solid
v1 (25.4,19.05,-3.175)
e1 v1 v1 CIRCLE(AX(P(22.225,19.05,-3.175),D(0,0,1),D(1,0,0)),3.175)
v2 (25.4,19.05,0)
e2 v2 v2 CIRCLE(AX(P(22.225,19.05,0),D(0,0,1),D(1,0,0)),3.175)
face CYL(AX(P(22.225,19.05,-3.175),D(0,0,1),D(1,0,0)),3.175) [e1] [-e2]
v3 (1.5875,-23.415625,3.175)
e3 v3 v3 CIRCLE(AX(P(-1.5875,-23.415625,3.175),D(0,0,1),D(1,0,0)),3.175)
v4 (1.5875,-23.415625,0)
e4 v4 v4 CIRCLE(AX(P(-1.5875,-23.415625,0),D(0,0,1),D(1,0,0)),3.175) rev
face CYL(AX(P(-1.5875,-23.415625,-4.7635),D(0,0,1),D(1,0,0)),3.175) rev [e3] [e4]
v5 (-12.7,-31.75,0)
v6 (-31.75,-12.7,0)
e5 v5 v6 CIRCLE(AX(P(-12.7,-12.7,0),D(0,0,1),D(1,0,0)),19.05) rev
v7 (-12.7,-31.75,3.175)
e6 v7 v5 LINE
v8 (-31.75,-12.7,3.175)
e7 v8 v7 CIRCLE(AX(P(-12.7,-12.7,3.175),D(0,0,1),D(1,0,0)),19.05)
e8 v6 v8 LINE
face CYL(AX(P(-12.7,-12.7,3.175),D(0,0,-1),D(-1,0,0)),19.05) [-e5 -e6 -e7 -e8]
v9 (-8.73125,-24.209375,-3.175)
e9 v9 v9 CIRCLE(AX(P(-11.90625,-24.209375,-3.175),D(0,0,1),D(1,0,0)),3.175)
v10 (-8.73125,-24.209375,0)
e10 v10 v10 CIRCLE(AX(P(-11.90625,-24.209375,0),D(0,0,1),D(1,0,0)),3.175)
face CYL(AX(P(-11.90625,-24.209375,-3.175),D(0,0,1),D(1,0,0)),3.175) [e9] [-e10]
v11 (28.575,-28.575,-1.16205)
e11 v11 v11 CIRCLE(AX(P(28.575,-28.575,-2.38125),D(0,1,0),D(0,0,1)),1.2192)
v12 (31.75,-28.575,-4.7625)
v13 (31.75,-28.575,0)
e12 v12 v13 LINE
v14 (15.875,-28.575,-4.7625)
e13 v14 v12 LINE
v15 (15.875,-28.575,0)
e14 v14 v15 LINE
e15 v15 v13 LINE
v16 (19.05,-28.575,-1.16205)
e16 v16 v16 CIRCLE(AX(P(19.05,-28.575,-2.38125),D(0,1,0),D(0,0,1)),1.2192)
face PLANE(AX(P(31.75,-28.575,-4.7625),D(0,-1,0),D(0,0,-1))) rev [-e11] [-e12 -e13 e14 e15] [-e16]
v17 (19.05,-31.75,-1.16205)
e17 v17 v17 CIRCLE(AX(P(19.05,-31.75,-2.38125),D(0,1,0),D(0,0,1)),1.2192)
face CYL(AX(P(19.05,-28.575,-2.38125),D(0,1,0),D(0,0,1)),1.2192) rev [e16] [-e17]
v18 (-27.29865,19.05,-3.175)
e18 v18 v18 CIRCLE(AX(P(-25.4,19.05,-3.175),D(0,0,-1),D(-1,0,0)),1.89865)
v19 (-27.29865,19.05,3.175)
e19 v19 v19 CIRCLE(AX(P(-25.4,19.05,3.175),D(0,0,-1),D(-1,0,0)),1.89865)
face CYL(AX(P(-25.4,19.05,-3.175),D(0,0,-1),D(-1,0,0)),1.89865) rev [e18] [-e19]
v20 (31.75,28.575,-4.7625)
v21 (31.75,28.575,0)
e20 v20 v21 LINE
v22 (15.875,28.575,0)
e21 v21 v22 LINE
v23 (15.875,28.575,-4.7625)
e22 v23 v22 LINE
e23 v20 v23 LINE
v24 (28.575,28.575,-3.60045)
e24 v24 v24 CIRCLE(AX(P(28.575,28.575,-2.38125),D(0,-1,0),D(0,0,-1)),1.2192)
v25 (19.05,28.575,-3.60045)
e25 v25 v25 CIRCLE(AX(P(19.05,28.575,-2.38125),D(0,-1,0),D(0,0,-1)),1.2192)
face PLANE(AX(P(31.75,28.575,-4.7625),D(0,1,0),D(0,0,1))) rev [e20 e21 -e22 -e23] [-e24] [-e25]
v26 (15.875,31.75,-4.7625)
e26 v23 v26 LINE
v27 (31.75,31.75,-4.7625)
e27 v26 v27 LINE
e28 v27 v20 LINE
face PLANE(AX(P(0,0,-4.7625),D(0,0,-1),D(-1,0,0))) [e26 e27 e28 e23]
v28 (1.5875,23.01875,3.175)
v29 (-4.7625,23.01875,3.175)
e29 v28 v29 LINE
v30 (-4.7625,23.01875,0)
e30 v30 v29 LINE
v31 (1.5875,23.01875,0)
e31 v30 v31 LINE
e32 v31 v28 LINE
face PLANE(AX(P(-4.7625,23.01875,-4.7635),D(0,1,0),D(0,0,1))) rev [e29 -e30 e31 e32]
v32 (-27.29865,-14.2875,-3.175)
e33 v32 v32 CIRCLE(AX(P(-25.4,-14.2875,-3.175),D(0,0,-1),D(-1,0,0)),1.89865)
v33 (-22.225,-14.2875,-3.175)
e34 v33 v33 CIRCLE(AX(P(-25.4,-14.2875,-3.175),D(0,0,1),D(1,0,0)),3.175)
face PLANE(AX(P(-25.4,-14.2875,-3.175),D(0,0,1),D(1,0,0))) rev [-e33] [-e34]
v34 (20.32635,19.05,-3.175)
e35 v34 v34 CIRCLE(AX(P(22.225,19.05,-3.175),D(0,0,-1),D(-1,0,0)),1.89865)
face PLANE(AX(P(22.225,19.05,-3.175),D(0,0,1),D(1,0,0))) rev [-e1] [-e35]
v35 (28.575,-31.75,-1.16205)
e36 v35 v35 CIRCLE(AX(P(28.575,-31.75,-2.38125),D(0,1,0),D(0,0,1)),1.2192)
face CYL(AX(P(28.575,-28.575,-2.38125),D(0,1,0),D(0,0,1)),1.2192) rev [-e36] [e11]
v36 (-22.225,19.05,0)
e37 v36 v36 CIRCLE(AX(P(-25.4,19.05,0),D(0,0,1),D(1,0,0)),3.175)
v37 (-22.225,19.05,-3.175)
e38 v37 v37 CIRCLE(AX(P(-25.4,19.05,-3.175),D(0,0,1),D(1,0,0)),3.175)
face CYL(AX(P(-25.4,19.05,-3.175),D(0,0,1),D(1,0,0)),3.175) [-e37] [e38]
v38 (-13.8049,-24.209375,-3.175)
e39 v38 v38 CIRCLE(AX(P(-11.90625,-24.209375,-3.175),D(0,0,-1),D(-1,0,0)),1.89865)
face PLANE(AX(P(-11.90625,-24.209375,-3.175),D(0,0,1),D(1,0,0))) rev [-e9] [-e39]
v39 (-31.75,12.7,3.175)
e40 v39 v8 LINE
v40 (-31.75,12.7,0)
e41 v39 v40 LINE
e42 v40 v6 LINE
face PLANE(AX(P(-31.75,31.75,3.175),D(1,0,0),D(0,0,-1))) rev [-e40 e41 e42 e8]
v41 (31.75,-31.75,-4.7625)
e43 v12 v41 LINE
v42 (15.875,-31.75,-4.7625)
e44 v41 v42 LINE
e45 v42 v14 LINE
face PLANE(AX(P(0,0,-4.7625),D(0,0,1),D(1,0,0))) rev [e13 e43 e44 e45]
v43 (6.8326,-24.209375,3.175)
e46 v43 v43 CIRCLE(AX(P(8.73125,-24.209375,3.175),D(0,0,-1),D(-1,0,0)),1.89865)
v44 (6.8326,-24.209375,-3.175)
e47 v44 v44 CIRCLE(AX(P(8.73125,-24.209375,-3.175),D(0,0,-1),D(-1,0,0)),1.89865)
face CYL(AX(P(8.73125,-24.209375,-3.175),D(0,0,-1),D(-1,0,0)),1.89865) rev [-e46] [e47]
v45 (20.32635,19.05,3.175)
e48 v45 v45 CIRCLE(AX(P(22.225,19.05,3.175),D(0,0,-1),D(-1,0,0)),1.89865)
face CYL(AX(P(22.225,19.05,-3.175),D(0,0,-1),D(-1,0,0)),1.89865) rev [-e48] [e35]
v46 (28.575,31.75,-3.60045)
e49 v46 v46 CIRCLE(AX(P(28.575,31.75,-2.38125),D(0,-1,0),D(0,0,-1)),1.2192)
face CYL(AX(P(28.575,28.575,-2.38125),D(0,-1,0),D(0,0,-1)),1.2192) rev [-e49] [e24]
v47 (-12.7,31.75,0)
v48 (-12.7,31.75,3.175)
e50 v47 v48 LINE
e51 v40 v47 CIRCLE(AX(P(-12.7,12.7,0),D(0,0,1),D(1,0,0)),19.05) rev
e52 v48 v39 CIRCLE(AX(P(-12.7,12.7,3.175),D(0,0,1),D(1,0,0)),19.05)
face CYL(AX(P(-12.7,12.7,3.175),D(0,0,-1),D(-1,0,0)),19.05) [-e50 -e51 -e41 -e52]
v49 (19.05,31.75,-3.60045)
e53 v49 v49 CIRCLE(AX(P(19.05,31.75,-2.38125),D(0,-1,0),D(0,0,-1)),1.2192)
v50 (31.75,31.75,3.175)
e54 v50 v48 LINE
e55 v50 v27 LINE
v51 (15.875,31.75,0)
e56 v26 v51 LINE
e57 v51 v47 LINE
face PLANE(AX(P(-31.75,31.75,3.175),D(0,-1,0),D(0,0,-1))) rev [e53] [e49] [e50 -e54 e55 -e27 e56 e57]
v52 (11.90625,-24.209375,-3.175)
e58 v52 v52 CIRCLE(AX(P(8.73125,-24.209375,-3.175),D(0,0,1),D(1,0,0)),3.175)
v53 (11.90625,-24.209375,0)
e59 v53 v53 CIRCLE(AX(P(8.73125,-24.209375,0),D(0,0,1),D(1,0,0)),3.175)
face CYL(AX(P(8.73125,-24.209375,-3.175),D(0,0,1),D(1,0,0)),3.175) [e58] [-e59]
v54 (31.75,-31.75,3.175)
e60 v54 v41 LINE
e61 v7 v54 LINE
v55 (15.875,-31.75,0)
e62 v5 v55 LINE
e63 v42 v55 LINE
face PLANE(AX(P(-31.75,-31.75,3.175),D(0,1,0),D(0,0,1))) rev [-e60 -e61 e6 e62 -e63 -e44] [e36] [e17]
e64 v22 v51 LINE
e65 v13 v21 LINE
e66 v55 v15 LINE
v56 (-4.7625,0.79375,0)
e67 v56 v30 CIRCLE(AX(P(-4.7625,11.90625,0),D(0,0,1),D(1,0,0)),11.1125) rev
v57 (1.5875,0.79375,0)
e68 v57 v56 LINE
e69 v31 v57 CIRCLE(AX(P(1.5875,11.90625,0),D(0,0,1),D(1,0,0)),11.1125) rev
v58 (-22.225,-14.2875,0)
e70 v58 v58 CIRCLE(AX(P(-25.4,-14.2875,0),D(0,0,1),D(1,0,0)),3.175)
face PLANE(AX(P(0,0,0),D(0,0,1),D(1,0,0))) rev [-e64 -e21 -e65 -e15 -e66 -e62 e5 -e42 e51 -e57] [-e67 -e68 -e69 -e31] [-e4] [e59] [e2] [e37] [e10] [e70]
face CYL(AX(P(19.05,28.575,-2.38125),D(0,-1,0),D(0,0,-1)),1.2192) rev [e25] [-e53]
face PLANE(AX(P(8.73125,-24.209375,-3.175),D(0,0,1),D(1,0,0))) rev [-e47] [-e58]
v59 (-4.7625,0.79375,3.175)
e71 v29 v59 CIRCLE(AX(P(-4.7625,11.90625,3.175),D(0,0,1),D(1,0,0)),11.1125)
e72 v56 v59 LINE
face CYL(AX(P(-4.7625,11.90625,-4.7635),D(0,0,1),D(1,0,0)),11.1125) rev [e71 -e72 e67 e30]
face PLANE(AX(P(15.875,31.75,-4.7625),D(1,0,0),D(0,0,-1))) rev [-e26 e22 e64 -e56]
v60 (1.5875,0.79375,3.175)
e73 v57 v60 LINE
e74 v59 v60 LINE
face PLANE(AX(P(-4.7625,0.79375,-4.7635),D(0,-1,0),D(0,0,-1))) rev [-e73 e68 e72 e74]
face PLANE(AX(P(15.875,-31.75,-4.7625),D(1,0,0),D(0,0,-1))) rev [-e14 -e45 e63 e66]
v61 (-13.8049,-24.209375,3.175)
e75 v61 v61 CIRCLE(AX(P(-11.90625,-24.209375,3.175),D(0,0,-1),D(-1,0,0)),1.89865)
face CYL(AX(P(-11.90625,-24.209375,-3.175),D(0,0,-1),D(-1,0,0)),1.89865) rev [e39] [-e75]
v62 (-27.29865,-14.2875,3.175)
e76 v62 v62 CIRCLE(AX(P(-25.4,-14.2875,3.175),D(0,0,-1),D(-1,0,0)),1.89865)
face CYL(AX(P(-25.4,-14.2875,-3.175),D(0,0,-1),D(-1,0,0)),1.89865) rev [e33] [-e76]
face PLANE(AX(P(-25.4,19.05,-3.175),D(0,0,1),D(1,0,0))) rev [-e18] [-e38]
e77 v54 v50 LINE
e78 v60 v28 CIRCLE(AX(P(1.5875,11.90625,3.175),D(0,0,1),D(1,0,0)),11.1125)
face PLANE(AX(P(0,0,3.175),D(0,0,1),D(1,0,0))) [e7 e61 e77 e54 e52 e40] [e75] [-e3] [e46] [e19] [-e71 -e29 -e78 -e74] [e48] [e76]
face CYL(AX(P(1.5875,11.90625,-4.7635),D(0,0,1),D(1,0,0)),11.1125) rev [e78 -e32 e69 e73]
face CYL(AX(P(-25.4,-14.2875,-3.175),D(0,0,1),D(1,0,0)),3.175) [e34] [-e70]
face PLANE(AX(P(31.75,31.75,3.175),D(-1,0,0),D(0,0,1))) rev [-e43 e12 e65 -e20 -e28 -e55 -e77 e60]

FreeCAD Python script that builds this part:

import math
import FreeCAD as App
import Part
import Sketcher
from FreeCAD import Vector
Q = App.Units.Quantity


def edges_at(feature, points):
    """Names of the edges that pass closest to the given points."""
    edges = feature.Shape.Edges
    near = lambda p: min(range(len(edges)), key=lambda i: edges[i].distToShape(Part.Vertex(*p))[0])
    return sorted({f"Edge{near(p) + 1}" for p in points})


def add_polygon(sketch, points):
    """Adds a closed chain of lines whose ends are joined by coincident constraints."""
    first, n = sketch.GeometryCount, len(points)
    for a, b in zip(points, points[1:] + points[:1]):
        sketch.addGeometry(Part.LineSegment(App.Vector(*a, 0), App.Vector(*b, 0)), False)
    for i in range(n):
        sketch.addConstraint(Sketcher.Constraint("Coincident", first + i, 2, first + (i + 1) % n, 1))

doc = App.newDocument("Part")
body = doc.addObject("PartDesign::Body", "Body")

# Sketch on XY plane
sketch1 = body.newObject("Sketcher::SketchObject", "Sketch")
sketch1.AttachmentSupport = (doc.getObject("XY_Plane"), [""])
sketch1.MapMode = "FlatFace"
add_polygon(sketch1, [(-32, 32), (-32, -32), (32, -32), (32, 32)])  # lines 0-3
sketch1.addConstraint(Sketcher.Constraint("Vertical", 0))
sketch1.addConstraint(Sketcher.Constraint("Horizontal", 1))
sketch1.addConstraint(Sketcher.Constraint("Vertical", 2))
sketch1.addConstraint(Sketcher.Constraint("Horizontal", 3))
sketch1.addConstraint(Sketcher.Constraint("Symmetric", 0, 2, 2, 2, -1, 1))
sketch1.addConstraint(Sketcher.Constraint("Equal", 3, 0))
sketch1.addConstraint(Sketcher.Constraint("DistanceX", 1, 1, 1, 2, Q("2.5 in")))
pad1 = body.newObject("PartDesign::Pad", "Pad")
pad1.Profile = sketch1
pad1.Length = Q("0.125 in")

# Sketch on XY plane
sketch2 = body.newObject("Sketcher::SketchObject", "Sketch001")
sketch2.AttachmentSupport = (doc.getObject("XY_Plane"), [""])
sketch2.MapMode = "FlatFace"
add_polygon(sketch2, [(15.9, -31.8), (15.9, -28.6), (31.8, -28.6), (31.8, -31.8)])  # lines 0-3
sketch2.addConstraint(Sketcher.Constraint("Vertical", 0))
sketch2.addConstraint(Sketcher.Constraint("Horizontal", 1))
sketch2.addConstraint(Sketcher.Constraint("Vertical", 2))
sketch2.addConstraint(Sketcher.Constraint("Horizontal", 3))
sketch2.addConstraint(Sketcher.Constraint("DistanceX", 1, 1, 1, 2, Q("0.625 in")))
sketch2.addConstraint(Sketcher.Constraint("DistanceY", 0, 1, 0, 2, Q("0.125 in")))
sketch2.addConstraint(Sketcher.Constraint("DistanceX", -1, 1, 1, 2, Q("1.25 in")))
sketch2.addConstraint(Sketcher.Constraint("DistanceY", 2, 2, -1, 1, Q("1.25 in")))
pad2 = body.newObject("PartDesign::Pad", "Pad001")
pad2.Profile = sketch2
pad2.Length = Q("0.1875 in")
pad2.Reversed = True

# Sketch on XZ plane
sketch3 = body.newObject("Sketcher::SketchObject", "Sketch002")
sketch3.AttachmentSupport = (doc.getObject("XZ_Plane"), [""])
sketch3.MapMode = "FlatFace"
sketch3.AttachmentOffset = App.Placement(Vector(0, 0, 1.125 * 25.4), App.Rotation())
sketch3.addGeometry(Part.Circle(Vector(28.6, -2.4, 0), Vector(0, 0, 1), 1.2), False)
sketch3.addGeometry(Part.Circle(Vector(19.1, -2.4, 0), Vector(0, 0, 1), 1.2), False)
sketch3.addConstraint(Sketcher.Constraint("Equal", 0, 1))
sketch3.addConstraint(Sketcher.Constraint("Horizontal", 0, 3, 1, 3))
sketch3.addConstraint(Sketcher.Constraint("Diameter", 0, Q("0.096 in")))
sketch3.addConstraint(Sketcher.Constraint("DistanceX", -1, 1, 1, 3, Q("0.75 in")))
sketch3.addConstraint(Sketcher.Constraint("DistanceX", -1, 1, 0, 3, Q("1.125 in")))
sketch3.addConstraint(Sketcher.Constraint("DistanceY", 0, 3, -1, 1, Q("0.09375 in")))
doc.recompute()
hole = body.newObject("PartDesign::Hole", "Hole")
hole.Profile = sketch3
hole.ThreadType = "None"
hole.Diameter = Q("0.096 in")
hole.DepthType = "Dimension"
hole.Depth = Q("0.125 in")
hole.DrillPoint = "Flat"
hole.Reversed = True
doc.recompute()

fillet = body.newObject("PartDesign::Fillet", "Fillet")
fillet.Base = (hole, edges_at(hole, [(-31.75, -31.75, 1.587), (-31.75, 31.75, 1.587)]))
fillet.Radius = Q("0.75 in")

# Sketch on XY plane
sketch4 = body.newObject("Sketcher::SketchObject", "Sketch003")
sketch4.AttachmentSupport = (doc.getObject("XY_Plane"), [""])
sketch4.MapMode = "FlatFace"
add_polygon(sketch4, [(31.8, 31.8), (31.8, 28.6), (15.9, 28.6), (15.9, 31.8)])  # lines 0-3
sketch4.addConstraint(Sketcher.Constraint("Vertical", 0))
sketch4.addConstraint(Sketcher.Constraint("Horizontal", 1))
sketch4.addConstraint(Sketcher.Constraint("Vertical", 2))
sketch4.addConstraint(Sketcher.Constraint("Horizontal", 3))
sketch4.addConstraint(Sketcher.Constraint("DistanceX", 1, 2, 1, 1, Q("0.625 in")))
sketch4.addConstraint(Sketcher.Constraint("DistanceY", 0, 2, 0, 1, Q("0.125 in")))
sketch4.addConstraint(Sketcher.Constraint("DistanceX", -1, 1, 0, 2, Q("1.25 in")))
sketch4.addConstraint(Sketcher.Constraint("DistanceY", -1, 1, 2, 2, Q("1.25 in")))
pad3 = body.newObject("PartDesign::Pad", "Pad002")
pad3.Profile = sketch4
pad3.Length = Q("0.1875 in")
pad3.Reversed = True

# Sketch on XZ plane
sketch5 = body.newObject("Sketcher::SketchObject", "Sketch004")
sketch5.AttachmentSupport = (doc.getObject("XZ_Plane"), [""])
sketch5.MapMode = "FlatFace"
sketch5.AttachmentOffset = App.Placement(Vector(0, 0, -1.125 * 25.4), App.Rotation())
sketch5.addGeometry(Part.Circle(Vector(19.1, -2.4, 0), Vector(0, 0, 1), 1.2), False)
sketch5.addGeometry(Part.Circle(Vector(28.6, -2.4, 0), Vector(0, 0, 1), 1.2), False)
sketch5.addConstraint(Sketcher.Constraint("Equal", 0, 1))
sketch5.addConstraint(Sketcher.Constraint("Horizontal", 0, 3, 1, 3))
sketch5.addConstraint(Sketcher.Constraint("Diameter", 0, Q("0.096 in")))
sketch5.addConstraint(Sketcher.Constraint("DistanceX", -1, 1, 0, 3, Q("0.75 in")))
sketch5.addConstraint(Sketcher.Constraint("DistanceY", 0, 3, -1, 1, Q("0.09375 in")))
sketch5.addConstraint(Sketcher.Constraint("DistanceX", -1, 1, 1, 3, Q("1.125 in")))
doc.recompute()
hole2 = body.newObject("PartDesign::Hole", "Hole001")
hole2.Profile = sketch5
hole2.ThreadType = "None"
hole2.Diameter = Q("0.096 in")
hole2.DepthType = "Dimension"
hole2.Depth = Q("0.125 in")
hole2.DrillPoint = "Flat"

# Sketch on XY plane
sketch6 = body.newObject("Sketcher::SketchObject", "Sketch005")
sketch6.AttachmentSupport = (doc.getObject("XY_Plane"), [""])
sketch6.MapMode = "FlatFace"
sketch6.addGeometry(Part.Circle(Vector(-25.4, 19.1, 0), Vector(0, 0, 1), 3.2), False)
sketch6.addGeometry(Part.Circle(Vector(-25.4, -14.3, 0), Vector(0, 0, 1), 3.2), False)
sketch6.addGeometry(Part.Circle(Vector(22.2, 19.1, 0), Vector(0, 0, 1), 3.2), False)
sketch6.addGeometry(Part.Circle(Vector(8.7, -24.2, 0), Vector(0, 0, 1), 3.2), False)
sketch6.addGeometry(Part.Circle(Vector(-11.9, -24.2, 0), Vector(0, 0, 1), 3.2), False)
sketch6.addConstraint(Sketcher.Constraint("Equal", 0, 1))
sketch6.addConstraint(Sketcher.Constraint("Equal", 1, 2))
sketch6.addConstraint(Sketcher.Constraint("Equal", 2, 3))
sketch6.addConstraint(Sketcher.Constraint("Equal", 3, 4))
sketch6.addConstraint(Sketcher.Constraint("Horizontal", 0, 3, 2, 3))
sketch6.addConstraint(Sketcher.Constraint("Horizontal", 3, 3, 4, 3))
sketch6.addConstraint(Sketcher.Constraint("Vertical", 0, 3, 1, 3))
sketch6.addConstraint(Sketcher.Constraint("Diameter", 0, Q("0.25 in")))
sketch6.addConstraint(Sketcher.Constraint("DistanceX", 0, 3, -1, 1, Q("1 in")))
sketch6.addConstraint(Sketcher.Constraint("DistanceY", -1, 1, 0, 3, Q("0.75 in")))
sketch6.addConstraint(Sketcher.Constraint("DistanceY", 1, 3, -1, 1, Q("0.5625 in")))
sketch6.addConstraint(Sketcher.Constraint("DistanceX", -1, 1, 2, 3, Q("0.875 in")))
sketch6.addConstraint(Sketcher.Constraint("DistanceX", -1, 1, 3, 3, Q("0.34375 in")))
sketch6.addConstraint(Sketcher.Constraint("DistanceY", 3, 3, -1, 1, Q("0.953125 in")))
sketch6.addConstraint(Sketcher.Constraint("DistanceX", 4, 3, -1, 1, Q("0.46875 in")))
pad4 = body.newObject("PartDesign::Pad", "Pad003")
pad4.Profile = sketch6
pad4.Length = Q("0.125 in")
pad4.Reversed = True

# Sketch on XY plane
sketch7 = body.newObject("Sketcher::SketchObject", "Sketch006")
sketch7.AttachmentSupport = (doc.getObject("XY_Plane"), [""])
sketch7.MapMode = "FlatFace"
sketch7.AttachmentOffset = App.Placement(Vector(0, 0, -0.125 * 25.4), App.Rotation())
sketch7.addGeometry(Part.Circle(Vector(22.2, 19.1, 0), Vector(0, 0, 1), 1.9), False)
sketch7.addGeometry(Part.Circle(Vector(-25.4, 19.1, 0), Vector(0, 0, 1), 1.9), False)
sketch7.addGeometry(Part.Circle(Vector(-25.4, -14.3, 0), Vector(0, 0, 1), 1.9), False)
sketch7.addGeometry(Part.Circle(Vector(-11.9, -24.2, 0), Vector(0, 0, 1), 1.9), False)
sketch7.addGeometry(Part.Circle(Vector(8.7, -24.2, 0), Vector(0, 0, 1), 1.9), False)
sketch7.addConstraint(Sketcher.Constraint("Equal", 0, 1))
sketch7.addConstraint(Sketcher.Constraint("Equal", 1, 2))
sketch7.addConstraint(Sketcher.Constraint("Equal", 2, 3))
sketch7.addConstraint(Sketcher.Constraint("Equal", 3, 4))
sketch7.addConstraint(Sketcher.Constraint("Horizontal", 0, 3, 1, 3))
sketch7.addConstraint(Sketcher.Constraint("Horizontal", 3, 3, 4, 3))
sketch7.addConstraint(Sketcher.Constraint("Vertical", 1, 3, 2, 3))
sketch7.addConstraint(Sketcher.Constraint("DistanceX", 1, 3, -1, 1, Q("1 in")))
sketch7.addConstraint(Sketcher.Constraint("Diameter", 0, Q("0.1495 in")))
sketch7.addConstraint(Sketcher.Constraint("DistanceY", -1, 1, 0, 3, Q("0.75 in")))
sketch7.addConstraint(Sketcher.Constraint("DistanceX", -1, 1, 0, 3, Q("0.875 in")))
sketch7.addConstraint(Sketcher.Constraint("DistanceY", 2, 3, -1, 1, Q("0.5625 in")))
sketch7.addConstraint(Sketcher.Constraint("DistanceX", 3, 3, -1, 1, Q("0.46875 in")))
sketch7.addConstraint(Sketcher.Constraint("DistanceY", 3, 3, -1, 1, Q("0.953125 in")))
sketch7.addConstraint(Sketcher.Constraint("DistanceX", -1, 1, 4, 3, Q("0.34375 in")))
doc.recompute()
hole3 = body.newObject("PartDesign::Hole", "Hole002")
hole3.Profile = sketch7
hole3.ThreadType = "None"
hole3.Diameter = Q("0.1495 in")
hole3.DepthType = "ThroughAll"
hole3.Reversed = True

# Sketch on XY plane
sketch8 = body.newObject("Sketcher::SketchObject", "Sketch007")
sketch8.AttachmentSupport = (doc.getObject("XY_Plane"), [""])
sketch8.MapMode = "FlatFace"
sketch8.AttachmentOffset = App.Placement(Vector(0, 0, 0.125 * 25.4), App.Rotation())
sketch8.addGeometry(Part.Circle(Vector(-1.6, -23.4, 0), Vector(0, 0, 1), 3.2), False)
sketch8.addConstraint(Sketcher.Constraint("Diameter", 0, Q("0.25 in")))
sketch8.addConstraint(Sketcher.Constraint("DistanceX", 0, 3, -1, 1, Q("0.0625 in")))
sketch8.addConstraint(Sketcher.Constraint("DistanceY", 0, 3, -1, 1, Q("0.921875 in")))
pocket1 = body.newObject("PartDesign::Pocket", "Pocket")
pocket1.Profile = sketch8
pocket1.Type = "UpToFirst"

# Sketch on XY plane
sketch9 = body.newObject("Sketcher::SketchObject", "Sketch008")
sketch9.AttachmentSupport = (doc.getObject("XY_Plane"), [""])
sketch9.MapMode = "FlatFace"
sketch9.AttachmentOffset = App.Placement(Vector(0, 0, 0.125 * 25.4), App.Rotation())
sketch9.addGeometry(Part.LineSegment(Vector(2, 23, 0), Vector(-5, 23, 0)), False)
sketch9.addGeometry(Part.ArcOfCircle(Part.Circle(Vector(-5, 12, 0), Vector(0, 0, 1), 11), math.radians(90), math.radians(270)), False)
sketch9.addGeometry(Part.LineSegment(Vector(-5, 1, 0), Vector(2, 1, 0)), False)
sketch9.addGeometry(Part.ArcOfCircle(Part.Circle(Vector(2, 12, 0), Vector(0, 0, 1), 11), math.radians(-90), math.radians(90)), False)
sketch9.addConstraint(Sketcher.Constraint("Tangent", 0, 2, 1, 1))
sketch9.addConstraint(Sketcher.Constraint("Tangent", 1, 2, 2, 1))
sketch9.addConstraint(Sketcher.Constraint("Tangent", 2, 2, 3, 1))
sketch9.addConstraint(Sketcher.Constraint("Tangent", 3, 2, 0, 1))
sketch9.addConstraint(Sketcher.Constraint("Horizontal", 0))
sketch9.addConstraint(Sketcher.Constraint("Horizontal", 2))
sketch9.addConstraint(Sketcher.Constraint("Radius", 1, Q("0.4375 in")))
sketch9.addConstraint(Sketcher.Constraint("DistanceX", 0, 2, 0, 1, Q("0.25 in")))
sketch9.addConstraint(Sketcher.Constraint("DistanceX", 1, 3, -1, 1, Q("0.1875 in")))
sketch9.addConstraint(Sketcher.Constraint("DistanceY", -1, 1, 1, 3, Q("0.46875 in")))
pocket2 = body.newObject("PartDesign::Pocket", "Pocket001")
pocket2.Profile = sketch9
pocket2.Type = "UpToFirst"

doc.recompute()
